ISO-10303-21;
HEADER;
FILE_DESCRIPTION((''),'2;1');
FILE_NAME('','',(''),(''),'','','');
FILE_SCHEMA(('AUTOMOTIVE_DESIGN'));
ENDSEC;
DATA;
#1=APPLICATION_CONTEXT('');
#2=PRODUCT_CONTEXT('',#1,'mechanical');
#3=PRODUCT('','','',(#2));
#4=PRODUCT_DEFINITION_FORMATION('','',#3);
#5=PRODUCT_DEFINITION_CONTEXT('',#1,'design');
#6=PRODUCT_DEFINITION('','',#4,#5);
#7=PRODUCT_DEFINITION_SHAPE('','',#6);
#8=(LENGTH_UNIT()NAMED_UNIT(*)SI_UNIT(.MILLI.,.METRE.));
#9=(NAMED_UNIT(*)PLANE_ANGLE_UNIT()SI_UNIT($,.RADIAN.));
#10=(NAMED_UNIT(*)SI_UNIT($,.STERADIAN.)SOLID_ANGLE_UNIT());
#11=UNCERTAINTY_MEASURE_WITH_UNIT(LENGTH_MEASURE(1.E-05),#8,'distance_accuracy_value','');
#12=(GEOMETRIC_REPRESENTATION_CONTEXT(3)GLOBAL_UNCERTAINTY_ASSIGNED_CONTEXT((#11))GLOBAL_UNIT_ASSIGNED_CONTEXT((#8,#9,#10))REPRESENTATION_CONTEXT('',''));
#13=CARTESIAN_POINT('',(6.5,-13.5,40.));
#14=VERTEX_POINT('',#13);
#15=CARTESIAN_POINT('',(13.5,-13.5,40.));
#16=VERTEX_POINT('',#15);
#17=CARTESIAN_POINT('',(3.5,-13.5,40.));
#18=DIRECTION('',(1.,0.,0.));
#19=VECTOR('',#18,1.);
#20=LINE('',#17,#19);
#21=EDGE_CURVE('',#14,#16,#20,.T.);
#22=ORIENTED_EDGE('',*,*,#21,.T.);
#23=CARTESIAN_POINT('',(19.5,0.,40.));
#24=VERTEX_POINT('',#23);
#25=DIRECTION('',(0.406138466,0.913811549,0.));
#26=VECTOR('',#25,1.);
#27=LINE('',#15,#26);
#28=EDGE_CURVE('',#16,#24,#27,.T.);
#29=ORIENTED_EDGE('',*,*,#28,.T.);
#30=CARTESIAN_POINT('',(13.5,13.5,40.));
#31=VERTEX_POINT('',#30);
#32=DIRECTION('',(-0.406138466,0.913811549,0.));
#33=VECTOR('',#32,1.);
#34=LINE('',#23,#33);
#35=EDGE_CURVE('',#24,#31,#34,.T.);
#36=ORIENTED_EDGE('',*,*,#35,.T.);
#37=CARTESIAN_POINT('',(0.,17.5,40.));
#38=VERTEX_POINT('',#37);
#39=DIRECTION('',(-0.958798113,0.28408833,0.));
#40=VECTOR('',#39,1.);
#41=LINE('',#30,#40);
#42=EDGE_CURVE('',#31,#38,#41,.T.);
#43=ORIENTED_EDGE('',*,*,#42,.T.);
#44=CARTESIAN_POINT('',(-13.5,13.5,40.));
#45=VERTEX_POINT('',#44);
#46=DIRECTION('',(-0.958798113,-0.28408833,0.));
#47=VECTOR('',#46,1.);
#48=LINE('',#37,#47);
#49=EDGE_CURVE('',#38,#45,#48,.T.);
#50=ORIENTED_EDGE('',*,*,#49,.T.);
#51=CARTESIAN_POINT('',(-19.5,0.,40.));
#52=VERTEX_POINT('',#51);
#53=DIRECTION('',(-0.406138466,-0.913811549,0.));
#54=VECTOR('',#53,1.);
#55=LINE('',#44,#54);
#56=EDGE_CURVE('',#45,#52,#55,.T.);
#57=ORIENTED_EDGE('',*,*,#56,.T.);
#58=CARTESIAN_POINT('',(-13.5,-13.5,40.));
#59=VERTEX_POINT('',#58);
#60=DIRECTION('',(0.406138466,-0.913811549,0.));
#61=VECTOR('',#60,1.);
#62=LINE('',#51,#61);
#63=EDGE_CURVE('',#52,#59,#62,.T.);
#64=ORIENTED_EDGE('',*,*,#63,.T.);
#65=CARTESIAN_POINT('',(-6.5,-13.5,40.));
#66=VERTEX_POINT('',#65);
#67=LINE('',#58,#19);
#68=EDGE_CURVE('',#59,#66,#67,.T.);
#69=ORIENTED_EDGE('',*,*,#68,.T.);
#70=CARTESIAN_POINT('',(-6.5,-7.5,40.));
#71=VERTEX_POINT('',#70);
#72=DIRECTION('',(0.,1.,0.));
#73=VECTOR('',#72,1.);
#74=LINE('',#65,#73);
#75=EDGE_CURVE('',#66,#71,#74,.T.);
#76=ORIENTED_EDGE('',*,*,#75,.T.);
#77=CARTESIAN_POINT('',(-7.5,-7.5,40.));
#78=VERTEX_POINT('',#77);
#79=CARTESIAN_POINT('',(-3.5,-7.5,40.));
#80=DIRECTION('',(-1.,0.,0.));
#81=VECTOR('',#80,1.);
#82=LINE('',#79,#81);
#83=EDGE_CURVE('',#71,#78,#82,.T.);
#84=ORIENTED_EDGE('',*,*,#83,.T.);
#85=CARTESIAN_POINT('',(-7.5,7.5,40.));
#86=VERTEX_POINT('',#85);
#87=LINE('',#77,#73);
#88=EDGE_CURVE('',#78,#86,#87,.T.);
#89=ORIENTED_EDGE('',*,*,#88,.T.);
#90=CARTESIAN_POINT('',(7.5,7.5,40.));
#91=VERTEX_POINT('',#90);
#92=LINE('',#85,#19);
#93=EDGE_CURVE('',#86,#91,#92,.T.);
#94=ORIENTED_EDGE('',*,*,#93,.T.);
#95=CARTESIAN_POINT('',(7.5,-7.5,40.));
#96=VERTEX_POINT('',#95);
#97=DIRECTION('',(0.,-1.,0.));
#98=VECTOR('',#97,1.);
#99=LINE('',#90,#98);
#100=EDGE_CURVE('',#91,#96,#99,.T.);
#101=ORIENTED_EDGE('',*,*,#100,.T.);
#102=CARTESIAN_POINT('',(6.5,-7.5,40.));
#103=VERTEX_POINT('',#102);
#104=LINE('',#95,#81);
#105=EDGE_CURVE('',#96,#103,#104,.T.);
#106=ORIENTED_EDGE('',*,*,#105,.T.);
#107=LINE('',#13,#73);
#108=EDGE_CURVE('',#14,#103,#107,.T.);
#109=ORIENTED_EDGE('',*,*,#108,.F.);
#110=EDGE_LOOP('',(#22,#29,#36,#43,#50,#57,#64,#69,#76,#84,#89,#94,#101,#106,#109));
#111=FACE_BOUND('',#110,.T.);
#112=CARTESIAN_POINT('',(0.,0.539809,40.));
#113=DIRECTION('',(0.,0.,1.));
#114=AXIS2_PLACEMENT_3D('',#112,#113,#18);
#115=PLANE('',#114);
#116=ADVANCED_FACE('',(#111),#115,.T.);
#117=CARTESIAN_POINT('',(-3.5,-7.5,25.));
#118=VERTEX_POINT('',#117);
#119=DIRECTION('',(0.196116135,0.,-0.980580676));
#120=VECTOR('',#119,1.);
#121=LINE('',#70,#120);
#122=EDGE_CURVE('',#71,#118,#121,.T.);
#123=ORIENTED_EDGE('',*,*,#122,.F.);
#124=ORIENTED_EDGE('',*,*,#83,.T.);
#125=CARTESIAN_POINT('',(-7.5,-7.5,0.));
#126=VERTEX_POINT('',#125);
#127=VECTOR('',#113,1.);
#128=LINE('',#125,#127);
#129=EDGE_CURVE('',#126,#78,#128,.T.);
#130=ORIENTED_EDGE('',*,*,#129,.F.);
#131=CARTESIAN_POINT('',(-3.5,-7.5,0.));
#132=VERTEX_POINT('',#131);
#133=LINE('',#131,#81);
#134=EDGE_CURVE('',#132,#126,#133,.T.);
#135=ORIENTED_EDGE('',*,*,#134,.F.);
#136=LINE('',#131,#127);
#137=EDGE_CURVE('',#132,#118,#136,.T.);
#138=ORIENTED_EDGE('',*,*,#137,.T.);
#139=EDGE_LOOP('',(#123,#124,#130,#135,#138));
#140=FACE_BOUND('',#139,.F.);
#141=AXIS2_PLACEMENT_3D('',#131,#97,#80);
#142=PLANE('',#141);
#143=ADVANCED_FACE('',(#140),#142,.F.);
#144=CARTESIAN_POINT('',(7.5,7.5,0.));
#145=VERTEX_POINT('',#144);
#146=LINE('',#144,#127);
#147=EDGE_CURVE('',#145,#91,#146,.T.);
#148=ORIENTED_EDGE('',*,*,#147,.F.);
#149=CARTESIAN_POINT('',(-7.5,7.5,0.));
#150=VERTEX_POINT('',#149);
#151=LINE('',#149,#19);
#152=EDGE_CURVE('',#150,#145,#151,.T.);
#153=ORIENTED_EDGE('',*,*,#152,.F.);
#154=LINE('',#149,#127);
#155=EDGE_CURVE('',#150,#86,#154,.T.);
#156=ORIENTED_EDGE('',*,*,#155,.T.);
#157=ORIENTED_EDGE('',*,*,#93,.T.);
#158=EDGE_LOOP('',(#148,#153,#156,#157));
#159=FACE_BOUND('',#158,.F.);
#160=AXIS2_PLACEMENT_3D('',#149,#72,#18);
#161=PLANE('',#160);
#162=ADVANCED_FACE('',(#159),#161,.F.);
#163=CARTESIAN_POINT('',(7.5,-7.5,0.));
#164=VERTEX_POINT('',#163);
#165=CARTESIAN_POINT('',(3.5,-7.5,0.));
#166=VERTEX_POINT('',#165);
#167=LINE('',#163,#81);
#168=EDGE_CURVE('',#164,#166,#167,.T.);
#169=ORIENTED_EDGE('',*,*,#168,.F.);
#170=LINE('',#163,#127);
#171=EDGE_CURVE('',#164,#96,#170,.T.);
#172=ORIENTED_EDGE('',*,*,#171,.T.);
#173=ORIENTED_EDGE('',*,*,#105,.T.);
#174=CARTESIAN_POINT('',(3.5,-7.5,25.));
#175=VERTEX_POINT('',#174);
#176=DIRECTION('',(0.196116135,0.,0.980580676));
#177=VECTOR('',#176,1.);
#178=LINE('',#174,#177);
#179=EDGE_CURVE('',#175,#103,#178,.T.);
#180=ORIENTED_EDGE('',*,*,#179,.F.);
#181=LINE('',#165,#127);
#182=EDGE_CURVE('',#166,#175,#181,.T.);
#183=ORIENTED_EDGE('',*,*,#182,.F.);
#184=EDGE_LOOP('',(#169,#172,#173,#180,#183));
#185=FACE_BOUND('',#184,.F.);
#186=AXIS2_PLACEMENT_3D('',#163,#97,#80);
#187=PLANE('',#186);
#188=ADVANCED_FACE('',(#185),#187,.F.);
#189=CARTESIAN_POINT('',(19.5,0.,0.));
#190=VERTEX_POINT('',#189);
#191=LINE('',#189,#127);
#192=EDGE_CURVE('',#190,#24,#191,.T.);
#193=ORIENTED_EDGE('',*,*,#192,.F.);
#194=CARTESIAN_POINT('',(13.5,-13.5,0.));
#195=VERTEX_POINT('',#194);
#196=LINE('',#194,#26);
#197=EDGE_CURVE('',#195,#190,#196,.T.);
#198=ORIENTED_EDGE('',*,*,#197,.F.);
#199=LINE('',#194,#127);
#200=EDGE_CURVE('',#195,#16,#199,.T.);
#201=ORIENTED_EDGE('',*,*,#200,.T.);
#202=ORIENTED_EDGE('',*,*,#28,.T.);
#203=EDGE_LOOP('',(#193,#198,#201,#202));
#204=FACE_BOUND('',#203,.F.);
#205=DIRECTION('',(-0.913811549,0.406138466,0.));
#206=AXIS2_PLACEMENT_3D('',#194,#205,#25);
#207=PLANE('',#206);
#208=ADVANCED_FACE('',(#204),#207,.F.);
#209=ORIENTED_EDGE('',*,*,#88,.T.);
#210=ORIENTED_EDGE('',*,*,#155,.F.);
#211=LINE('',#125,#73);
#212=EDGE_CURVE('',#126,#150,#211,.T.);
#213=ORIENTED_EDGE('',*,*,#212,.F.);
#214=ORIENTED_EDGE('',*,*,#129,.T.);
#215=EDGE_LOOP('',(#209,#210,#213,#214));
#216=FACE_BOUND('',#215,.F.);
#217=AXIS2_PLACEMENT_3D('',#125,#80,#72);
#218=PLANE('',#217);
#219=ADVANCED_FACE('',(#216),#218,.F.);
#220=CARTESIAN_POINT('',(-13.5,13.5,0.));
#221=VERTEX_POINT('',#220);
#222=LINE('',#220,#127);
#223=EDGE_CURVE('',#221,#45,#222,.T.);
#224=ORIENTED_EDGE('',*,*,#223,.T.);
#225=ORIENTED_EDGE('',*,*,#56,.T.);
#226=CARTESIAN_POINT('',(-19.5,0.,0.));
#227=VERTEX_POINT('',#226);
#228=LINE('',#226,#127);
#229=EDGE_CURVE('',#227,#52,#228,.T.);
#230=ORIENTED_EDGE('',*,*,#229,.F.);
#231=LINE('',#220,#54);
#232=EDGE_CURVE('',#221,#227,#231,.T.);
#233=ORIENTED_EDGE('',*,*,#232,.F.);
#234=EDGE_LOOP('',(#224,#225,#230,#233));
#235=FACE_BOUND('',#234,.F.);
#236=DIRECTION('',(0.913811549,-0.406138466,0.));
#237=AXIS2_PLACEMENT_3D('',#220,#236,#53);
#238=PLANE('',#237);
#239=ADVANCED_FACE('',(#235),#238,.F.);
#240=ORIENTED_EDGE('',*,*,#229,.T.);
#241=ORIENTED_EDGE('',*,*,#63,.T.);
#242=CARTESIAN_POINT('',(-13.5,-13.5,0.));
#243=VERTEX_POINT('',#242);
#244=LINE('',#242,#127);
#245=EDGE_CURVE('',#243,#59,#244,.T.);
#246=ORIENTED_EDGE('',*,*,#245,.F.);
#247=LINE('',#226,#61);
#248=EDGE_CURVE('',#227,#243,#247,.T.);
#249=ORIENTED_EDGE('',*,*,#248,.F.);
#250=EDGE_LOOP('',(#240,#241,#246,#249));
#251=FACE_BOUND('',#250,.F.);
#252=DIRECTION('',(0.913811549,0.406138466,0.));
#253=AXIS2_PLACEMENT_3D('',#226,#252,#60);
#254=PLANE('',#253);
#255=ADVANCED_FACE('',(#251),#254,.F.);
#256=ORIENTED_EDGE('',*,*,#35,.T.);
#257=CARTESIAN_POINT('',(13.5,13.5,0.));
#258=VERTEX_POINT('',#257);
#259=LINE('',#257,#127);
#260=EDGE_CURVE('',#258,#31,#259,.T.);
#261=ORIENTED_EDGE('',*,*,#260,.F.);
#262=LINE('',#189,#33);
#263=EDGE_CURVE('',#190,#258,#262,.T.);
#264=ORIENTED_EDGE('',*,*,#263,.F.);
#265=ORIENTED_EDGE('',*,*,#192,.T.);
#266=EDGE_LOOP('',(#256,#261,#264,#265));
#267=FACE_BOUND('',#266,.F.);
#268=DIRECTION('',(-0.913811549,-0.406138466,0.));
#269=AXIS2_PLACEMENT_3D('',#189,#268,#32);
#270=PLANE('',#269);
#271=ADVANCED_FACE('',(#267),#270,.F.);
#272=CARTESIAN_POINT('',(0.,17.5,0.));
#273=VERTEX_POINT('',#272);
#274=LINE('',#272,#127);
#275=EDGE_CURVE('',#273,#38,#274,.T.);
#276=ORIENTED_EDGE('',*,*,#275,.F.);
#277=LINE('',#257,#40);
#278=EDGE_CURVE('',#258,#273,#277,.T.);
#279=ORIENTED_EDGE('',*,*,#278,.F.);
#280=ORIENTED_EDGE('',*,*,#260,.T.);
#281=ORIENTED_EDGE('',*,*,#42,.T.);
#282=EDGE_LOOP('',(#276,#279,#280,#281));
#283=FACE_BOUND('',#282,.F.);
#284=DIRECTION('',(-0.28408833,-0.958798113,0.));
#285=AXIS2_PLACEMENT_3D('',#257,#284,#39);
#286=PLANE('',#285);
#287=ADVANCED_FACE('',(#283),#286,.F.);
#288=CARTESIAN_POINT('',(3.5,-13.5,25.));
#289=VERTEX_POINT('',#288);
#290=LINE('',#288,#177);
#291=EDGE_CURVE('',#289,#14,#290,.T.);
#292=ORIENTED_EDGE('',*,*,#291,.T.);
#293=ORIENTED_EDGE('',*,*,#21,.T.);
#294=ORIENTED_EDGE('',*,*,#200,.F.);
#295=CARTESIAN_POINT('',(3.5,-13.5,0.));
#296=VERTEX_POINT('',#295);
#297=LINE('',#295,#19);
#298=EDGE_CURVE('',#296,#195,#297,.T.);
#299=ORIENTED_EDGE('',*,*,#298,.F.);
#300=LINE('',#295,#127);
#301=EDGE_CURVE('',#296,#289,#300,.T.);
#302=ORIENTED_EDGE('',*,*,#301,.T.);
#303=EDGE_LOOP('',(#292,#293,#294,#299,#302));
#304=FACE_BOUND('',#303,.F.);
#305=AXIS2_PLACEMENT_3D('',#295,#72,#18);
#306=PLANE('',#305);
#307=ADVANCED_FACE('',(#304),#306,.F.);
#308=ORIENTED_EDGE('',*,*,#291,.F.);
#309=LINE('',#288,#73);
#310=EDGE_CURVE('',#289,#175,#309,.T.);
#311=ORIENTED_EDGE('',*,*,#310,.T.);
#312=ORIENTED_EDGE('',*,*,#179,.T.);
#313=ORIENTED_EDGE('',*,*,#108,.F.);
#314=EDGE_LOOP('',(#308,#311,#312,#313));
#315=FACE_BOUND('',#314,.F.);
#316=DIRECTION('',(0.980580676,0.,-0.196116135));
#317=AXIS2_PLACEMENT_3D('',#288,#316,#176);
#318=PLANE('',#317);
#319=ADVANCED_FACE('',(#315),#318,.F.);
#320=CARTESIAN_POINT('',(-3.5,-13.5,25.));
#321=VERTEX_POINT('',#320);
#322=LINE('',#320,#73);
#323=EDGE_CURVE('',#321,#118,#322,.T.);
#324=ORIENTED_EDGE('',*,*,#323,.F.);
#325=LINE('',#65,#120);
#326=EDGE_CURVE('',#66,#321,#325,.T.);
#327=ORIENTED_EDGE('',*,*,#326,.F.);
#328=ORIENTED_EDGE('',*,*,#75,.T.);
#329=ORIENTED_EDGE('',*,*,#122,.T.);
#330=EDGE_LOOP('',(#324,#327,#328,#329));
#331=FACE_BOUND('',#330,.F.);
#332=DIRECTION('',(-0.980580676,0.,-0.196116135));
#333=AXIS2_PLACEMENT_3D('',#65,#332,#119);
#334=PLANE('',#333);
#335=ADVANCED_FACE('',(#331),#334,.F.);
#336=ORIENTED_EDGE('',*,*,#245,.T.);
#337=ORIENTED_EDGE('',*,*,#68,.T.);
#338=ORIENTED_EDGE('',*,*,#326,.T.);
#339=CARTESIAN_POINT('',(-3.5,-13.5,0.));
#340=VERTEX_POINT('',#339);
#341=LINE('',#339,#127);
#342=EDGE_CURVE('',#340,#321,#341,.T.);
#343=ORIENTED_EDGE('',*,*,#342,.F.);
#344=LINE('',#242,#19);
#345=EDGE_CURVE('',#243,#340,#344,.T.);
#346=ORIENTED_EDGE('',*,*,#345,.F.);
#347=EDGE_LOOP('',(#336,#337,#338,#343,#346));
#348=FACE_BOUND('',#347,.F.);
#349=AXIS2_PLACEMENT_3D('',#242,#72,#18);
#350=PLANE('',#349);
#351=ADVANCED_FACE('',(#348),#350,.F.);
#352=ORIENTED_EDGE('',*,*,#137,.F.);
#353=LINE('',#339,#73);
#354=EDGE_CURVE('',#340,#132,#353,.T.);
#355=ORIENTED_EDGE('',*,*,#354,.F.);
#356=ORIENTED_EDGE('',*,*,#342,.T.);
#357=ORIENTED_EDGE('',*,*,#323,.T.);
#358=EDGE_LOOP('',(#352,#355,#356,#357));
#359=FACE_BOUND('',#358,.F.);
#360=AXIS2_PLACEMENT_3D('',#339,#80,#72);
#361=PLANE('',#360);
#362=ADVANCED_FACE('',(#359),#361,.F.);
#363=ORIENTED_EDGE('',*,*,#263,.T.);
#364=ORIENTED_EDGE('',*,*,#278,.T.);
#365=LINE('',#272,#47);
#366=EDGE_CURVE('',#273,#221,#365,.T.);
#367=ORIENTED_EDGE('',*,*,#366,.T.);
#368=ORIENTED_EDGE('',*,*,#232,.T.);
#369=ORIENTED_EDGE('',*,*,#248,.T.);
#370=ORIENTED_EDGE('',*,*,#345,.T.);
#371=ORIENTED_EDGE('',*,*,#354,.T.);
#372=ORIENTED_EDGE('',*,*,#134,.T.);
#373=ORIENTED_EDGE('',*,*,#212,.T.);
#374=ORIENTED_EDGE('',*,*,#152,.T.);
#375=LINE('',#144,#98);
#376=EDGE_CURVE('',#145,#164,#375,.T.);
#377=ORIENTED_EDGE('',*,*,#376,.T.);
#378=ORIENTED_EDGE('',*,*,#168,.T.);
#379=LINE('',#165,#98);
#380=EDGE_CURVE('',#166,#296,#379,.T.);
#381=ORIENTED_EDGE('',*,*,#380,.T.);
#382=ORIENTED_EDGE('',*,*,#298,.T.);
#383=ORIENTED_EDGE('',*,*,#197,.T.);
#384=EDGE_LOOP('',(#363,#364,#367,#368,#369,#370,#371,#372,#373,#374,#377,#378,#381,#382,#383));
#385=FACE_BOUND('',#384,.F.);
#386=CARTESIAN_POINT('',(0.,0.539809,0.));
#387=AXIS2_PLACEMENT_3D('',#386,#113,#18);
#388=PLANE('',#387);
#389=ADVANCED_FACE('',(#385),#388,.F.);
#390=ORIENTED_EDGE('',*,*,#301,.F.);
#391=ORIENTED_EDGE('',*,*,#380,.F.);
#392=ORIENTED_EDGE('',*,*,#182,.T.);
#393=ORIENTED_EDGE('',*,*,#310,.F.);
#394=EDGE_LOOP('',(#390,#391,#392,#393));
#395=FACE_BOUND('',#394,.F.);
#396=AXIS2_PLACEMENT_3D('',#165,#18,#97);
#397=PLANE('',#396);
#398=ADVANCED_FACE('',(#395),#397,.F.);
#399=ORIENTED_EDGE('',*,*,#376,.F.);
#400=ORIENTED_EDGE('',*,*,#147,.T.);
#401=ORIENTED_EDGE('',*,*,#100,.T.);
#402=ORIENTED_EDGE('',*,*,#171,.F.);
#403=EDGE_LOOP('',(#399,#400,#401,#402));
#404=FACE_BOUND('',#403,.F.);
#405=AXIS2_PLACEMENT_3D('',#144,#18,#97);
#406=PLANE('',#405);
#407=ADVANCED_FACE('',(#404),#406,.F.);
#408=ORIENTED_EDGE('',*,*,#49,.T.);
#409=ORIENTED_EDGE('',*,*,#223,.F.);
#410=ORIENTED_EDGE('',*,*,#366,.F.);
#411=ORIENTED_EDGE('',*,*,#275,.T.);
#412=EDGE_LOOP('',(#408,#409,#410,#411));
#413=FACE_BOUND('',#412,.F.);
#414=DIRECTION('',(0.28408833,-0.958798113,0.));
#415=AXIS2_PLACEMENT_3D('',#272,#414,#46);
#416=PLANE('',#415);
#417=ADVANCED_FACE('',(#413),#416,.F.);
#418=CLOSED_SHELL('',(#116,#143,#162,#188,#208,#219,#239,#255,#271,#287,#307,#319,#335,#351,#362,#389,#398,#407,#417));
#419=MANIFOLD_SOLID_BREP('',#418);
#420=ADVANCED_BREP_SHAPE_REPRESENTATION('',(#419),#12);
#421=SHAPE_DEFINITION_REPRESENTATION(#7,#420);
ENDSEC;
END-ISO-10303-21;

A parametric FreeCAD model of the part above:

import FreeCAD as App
import Part
import Sketcher
from FreeCAD import Vector
Q = App.Units.Quantity

doc = App.newDocument("Part")
body = doc.addObject("PartDesign::Body", "Body")

sketch1 = body.newObject("Sketcher::SketchObject", "Sketch")
sketch1.AttachmentSupport = (doc.getObject("XY_Plane"), [""])
sketch1.MapMode = "FlatFace"
sketch1.addGeometry([
    Part.LineSegment(Vector(-7.5, -7.5, 0), Vector(-7.5, 7.5, 0)),
    Part.LineSegment(Vector(-7.5, 7.5, 0), Vector(7.5, 7.5, 0)),
    Part.LineSegment(Vector(7.5, 7.5, 0), Vector(7.5, -7.5, 0)),
    Part.LineSegment(Vector(7.5, -7.5, 0), Vector(3.5, -7.5, 0)),
    Part.LineSegment(Vector(3.5, -7.5, 0), Vector(3.5, -13.5, 0)),
    Part.LineSegment(Vector(3.5, -13.5, 0), Vector(13.5, -13.5, 0)),
    Part.LineSegment(Vector(13.5, -13.5, 0), Vector(19.5, 0, 0)),
    Part.LineSegment(Vector(19.5, 0, 0), Vector(13.5, 13.5, 0)),
    Part.LineSegment(Vector(13.5, 13.5, 0), Vector(0, 17.5, 0)),
    Part.LineSegment(Vector(0, 17.5, 0), Vector(-13.5, 13.5, 0)),
    Part.LineSegment(Vector(-13.5, 13.5, 0), Vector(-19.5, 0, 0)),
    Part.LineSegment(Vector(-19.5, 0, 0), Vector(-13.5, -13.5, 0)),
    Part.LineSegment(Vector(-13.5, -13.5, 0), Vector(-3.5, -13.5, 0)),
    Part.LineSegment(Vector(-3.5, -13.5, 0), Vector(-3.5, -7.5, 0)),
    Part.LineSegment(Vector(-3.5, -7.5, 0), Vector(-7.5, -7.5, 0)),
], False)
sketch1.addConstraint([
    Sketcher.Constraint("Coincident", 0, 2, 1, 1),
    Sketcher.Constraint("Coincident", 1, 2, 2, 1),
    Sketcher.Constraint("Coincident", 2, 2, 3, 1),
    Sketcher.Constraint("Coincident", 3, 2, 4, 1),
    Sketcher.Constraint("Coincident", 4, 2, 5, 1),
    Sketcher.Constraint("Coincident", 5, 2, 6, 1),
    Sketcher.Constraint("Coincident", 6, 2, 7, 1),
    Sketcher.Constraint("Coincident", 7, 2, 8, 1),
    Sketcher.Constraint("Coincident", 8, 2, 9, 1),
    Sketcher.Constraint("Coincident", 9, 2, 10, 1),
    Sketcher.Constraint("Coincident", 10, 2, 11, 1),
    Sketcher.Constraint("Coincident", 11, 2, 12, 1),
    Sketcher.Constraint("Coincident", 12, 2, 13, 1),
    Sketcher.Constraint("Coincident", 13, 2, 14, 1),
    Sketcher.Constraint("Coincident", 14, 2, 0, 1),
    Sketcher.Constraint("Vertical", 0),
    Sketcher.Constraint("Horizontal", 1),
    Sketcher.Constraint("Vertical", 2),
    Sketcher.Constraint("Horizontal", 3),
    Sketcher.Constraint("Vertical", 4),
    Sketcher.Constraint("Horizontal", 5),
    Sketcher.Constraint("Horizontal", 12),
    Sketcher.Constraint("Vertical", 13),
    Sketcher.Constraint("Horizontal", 14),
    Sketcher.Constraint("Symmetric", 0, 2, 2, 2, -1, 1),
    Sketcher.Constraint("Symmetric", 5, 2, 9, 2, -1, 1),
    Sketcher.Constraint("Symmetric", 6, 2, 10, 2, -1, 1),
    Sketcher.Constraint("Symmetric", 7, 2, 11, 2, -1, 1),
    Sketcher.Constraint("Symmetric", 7, 2, 9, 2, -2),
    Sketcher.Constraint("Symmetric", 3, 2, 13, 2, -2),
    Sketcher.Constraint("PointOnObject", 6, 2, -1),
    Sketcher.Constraint("PointOnObject", 8, 2, -2),
    Sketcher.Constraint("Equal", 1, 0),
    Sketcher.Constraint("DistanceX", 1, 1, 1, 2, Q("15 mm")),
    Sketcher.Constraint("DistanceX", 3, 2, 3, 1, Q("4 mm")),
    Sketcher.Constraint("DistanceX", 5, 1, 5, 2, Q("10 mm")),
    Sketcher.Constraint("DistanceY", 4, 2, 4, 1, Q("6 mm")),
    Sketcher.Constraint("DistanceX", 1, 2, 6, 2, Q("12 mm")),
    Sketcher.Constraint("DistanceY", 0, 2, 8, 2, Q("10 mm")),
])
pad1 = body.newObject("PartDesign::Pad", "Pad")
pad1.Profile = sketch1
pad1.Length = 40

sketch2 = body.newObject("Sketcher::SketchObject", "Sketch001")
sketch2.AttachmentSupport = (doc.getObject("XZ_Plane"), [""])
sketch2.MapMode = "FlatFace"
sketch2.AttachmentOffset = App.Placement(Vector(0, 0, 13.5), App.Rotation())
sketch2.addGeometry([
    Part.LineSegment(Vector(-3.5, 25, 0), Vector(-3.5, 40, 0)),
    Part.LineSegment(Vector(-3.5, 40, 0), Vector(-6.5, 40, 0)),
    Part.LineSegment(Vector(-6.5, 40, 0), Vector(-3.5, 25, 0)),
    Part.LineSegment(Vector(3.5, 25, 0), Vector(6.5, 40, 0)),
    Part.LineSegment(Vector(6.5, 40, 0), Vector(3.5, 40, 0)),
    Part.LineSegment(Vector(3.5, 40, 0), Vector(3.5, 25, 0)),
], False)
sketch2.addConstraint([
    Sketcher.Constraint("Coincident", 0, 2, 1, 1),
    Sketcher.Constraint("Coincident", 1, 2, 2, 1),
    Sketcher.Constraint("Coincident", 2, 2, 0, 1),
    Sketcher.Constraint("Coincident", 3, 2, 4, 1),
    Sketcher.Constraint("Coincident", 4, 2, 5, 1),
    Sketcher.Constraint("Coincident", 5, 2, 3, 1),
    Sketcher.Constraint("Vertical", 0),
    Sketcher.Constraint("Horizontal", 1),
    Sketcher.Constraint("Horizontal", 4),
    Sketcher.Constraint("Vertical", 5),
    Sketcher.Constraint("Symmetric", 1, 2, 3, 2, -2),
    Sketcher.Constraint("Symmetric", 2, 2, 5, 2, -2),
    Sketcher.Constraint("DistanceX", 1, 2, 1, 1, Q("3 mm")),
    Sketcher.Constraint("DistanceY", 0, 1, 0, 2, Q("15 mm")),
    Sketcher.Constraint("DistanceY", -1, 1, 0, 2, Q("40 mm")),
    Sketcher.Constraint("DistanceX", 0, 2, 3, 2, Q("10 mm")),
])
pocket1 = body.newObject("PartDesign::Pocket", "Pocket")
pocket1.Profile = sketch2
pocket1.Length = 6

doc.recompute()
